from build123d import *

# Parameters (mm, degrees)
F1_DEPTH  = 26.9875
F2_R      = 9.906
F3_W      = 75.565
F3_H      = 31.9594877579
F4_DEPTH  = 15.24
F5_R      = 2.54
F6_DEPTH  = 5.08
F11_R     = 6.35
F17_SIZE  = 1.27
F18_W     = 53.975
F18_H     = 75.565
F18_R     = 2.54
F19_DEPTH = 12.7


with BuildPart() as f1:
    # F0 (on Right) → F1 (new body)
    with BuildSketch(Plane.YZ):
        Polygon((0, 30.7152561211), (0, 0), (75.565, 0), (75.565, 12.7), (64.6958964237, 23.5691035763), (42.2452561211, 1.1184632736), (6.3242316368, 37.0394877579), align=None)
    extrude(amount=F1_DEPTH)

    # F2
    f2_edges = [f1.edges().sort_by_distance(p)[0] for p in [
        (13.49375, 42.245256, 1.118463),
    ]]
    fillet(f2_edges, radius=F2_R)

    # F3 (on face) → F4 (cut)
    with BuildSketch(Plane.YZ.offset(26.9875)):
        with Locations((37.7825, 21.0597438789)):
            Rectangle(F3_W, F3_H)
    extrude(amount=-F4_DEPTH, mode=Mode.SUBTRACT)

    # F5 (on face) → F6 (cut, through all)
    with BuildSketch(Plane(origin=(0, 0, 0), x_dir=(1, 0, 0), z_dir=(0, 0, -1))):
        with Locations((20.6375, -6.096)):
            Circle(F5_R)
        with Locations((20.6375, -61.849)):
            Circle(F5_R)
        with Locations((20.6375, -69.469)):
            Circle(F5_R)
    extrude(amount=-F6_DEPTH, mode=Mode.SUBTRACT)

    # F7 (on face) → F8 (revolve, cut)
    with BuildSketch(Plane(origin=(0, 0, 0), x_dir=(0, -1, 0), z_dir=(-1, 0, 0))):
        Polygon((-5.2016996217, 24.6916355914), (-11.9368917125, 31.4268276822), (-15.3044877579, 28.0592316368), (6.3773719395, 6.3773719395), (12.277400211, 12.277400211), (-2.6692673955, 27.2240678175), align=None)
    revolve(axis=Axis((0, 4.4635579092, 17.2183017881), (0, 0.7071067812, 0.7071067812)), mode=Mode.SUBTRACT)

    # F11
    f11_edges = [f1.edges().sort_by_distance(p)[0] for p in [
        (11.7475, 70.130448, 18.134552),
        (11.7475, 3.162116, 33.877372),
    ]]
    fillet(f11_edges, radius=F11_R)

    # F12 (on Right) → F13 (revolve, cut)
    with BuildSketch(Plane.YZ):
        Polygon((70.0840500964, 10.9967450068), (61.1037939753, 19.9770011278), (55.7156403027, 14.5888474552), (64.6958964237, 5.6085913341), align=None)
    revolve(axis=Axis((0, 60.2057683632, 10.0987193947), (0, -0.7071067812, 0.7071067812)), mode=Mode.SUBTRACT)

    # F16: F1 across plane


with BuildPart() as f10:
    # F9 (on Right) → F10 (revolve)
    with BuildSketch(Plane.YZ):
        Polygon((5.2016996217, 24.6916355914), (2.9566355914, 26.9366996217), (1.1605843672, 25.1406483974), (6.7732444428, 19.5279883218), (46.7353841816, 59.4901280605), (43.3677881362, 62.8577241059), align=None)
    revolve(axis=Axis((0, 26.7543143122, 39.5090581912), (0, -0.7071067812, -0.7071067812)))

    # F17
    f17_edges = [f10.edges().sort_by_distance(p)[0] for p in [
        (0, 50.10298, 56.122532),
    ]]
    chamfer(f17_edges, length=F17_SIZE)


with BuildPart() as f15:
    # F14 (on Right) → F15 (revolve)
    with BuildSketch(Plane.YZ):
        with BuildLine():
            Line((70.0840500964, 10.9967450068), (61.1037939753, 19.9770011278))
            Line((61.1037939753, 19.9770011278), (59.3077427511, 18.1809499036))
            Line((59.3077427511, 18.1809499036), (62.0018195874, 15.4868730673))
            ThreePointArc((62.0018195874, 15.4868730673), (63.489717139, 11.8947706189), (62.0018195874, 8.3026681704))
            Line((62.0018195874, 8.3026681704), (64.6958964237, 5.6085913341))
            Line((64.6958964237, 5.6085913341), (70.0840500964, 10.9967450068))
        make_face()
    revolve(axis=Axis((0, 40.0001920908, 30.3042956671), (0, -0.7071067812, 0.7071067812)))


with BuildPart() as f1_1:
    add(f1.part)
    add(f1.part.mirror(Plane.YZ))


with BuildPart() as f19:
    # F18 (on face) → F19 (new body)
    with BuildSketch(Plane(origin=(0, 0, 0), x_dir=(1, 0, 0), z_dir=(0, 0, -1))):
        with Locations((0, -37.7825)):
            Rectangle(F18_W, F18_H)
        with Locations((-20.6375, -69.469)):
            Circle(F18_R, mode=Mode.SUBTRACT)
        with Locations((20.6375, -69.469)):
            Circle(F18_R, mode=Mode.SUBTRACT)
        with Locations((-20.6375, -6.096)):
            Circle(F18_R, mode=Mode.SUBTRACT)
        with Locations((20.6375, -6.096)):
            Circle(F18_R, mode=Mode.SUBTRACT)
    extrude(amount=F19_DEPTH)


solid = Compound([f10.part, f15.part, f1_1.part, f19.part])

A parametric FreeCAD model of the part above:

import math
import FreeCAD as App
import Part
import Sketcher
Q = App.Units.Quantity


def edges_at(feature, points):
    """Names of the edges that pass closest to the given points."""
    edges = feature.Shape.Edges
    near = lambda p: min(range(len(edges)), key=lambda i: edges[i].distToShape(Part.Vertex(*p))[0])
    return sorted({f"Edge{near(p) + 1}" for p in points})


def add_polygon(sketch, points):
    """Adds a closed chain of lines whose ends are joined by coincident constraints."""
    first, n = sketch.GeometryCount, len(points)
    for a, b in zip(points, points[1:] + points[:1]):
        sketch.addGeometry(Part.LineSegment(App.Vector(*a, 0), App.Vector(*b, 0)), False)
    for i in range(n):
        sketch.addConstraint(Sketcher.Constraint("Coincident", first + i, 2, first + (i + 1) % n, 1))

doc = App.newDocument("Part")
body = doc.addObject("PartDesign::Body", "Body")

sketch1 = body.newObject("Sketcher::SketchObject", "Sketch")
sketch1.AttachmentSupport = (doc.getObject("YZ_Plane"), [""])
sketch1.MapMode = "FlatFace"
add_polygon(sketch1, [(0, 31), (0, 0), (76, 0), (76, 13), (65, 24), (42, 1), (6, 37)])
sketch1.addConstraint([
    Sketcher.Constraint("Vertical", 0),
    Sketcher.Constraint("Horizontal", 1),
    Sketcher.Constraint("Vertical", 2),
    Sketcher.Constraint("Coincident", 0, 2, -1, 1),
    Sketcher.Constraint("Perpendicular", 3, 4),
    Sketcher.Constraint("Perpendicular", 4, 5),
    Sketcher.Constraint("Perpendicular", 5, 6),
    Sketcher.Constraint("Distance", 5, Q("2 in")),
    Sketcher.Constraint("DistanceY", 2, 1, 2, 2, Q("0.5 in")),
    Sketcher.Constraint("Angle", 3, Q("135 deg")),
    Sketcher.Constraint("Distance", 4, Q("1.25 in")),
    Sketcher.Constraint("DistanceX", 1, 1, 1, 2, Q("2.975 in")),
    Sketcher.Constraint("DistanceY", 0, 2, 0, 1, 30.715256),
])
pad1 = body.newObject("PartDesign::Pad", "Pad")
pad1.Profile = sketch1
pad1.Length = Q("1.0625 in")
doc.recompute()

fillet = body.newObject("PartDesign::Fillet", "Fillet")
fillet.Base = (pad1, edges_at(pad1, [(13.494, 42.245, 1.118)]))
fillet.Radius = Q("0.39 in")

sketch2 = body.newObject("Sketcher::SketchObject", "Sketch001")
sketch2.AttachmentSupport = (doc.getObject("YZ_Plane"), [""])
sketch2.MapMode = "FlatFace"
sketch2.AttachmentOffset = App.Placement(App.Vector(0, 0, 1.0625 * 25.4), App.Rotation())
add_polygon(sketch2, [(0, 37), (0, 5), (76, 5), (76, 37)])
sketch2.addConstraint([
    Sketcher.Constraint("Vertical", 0),
    Sketcher.Constraint("Horizontal", 1),
    Sketcher.Constraint("Vertical", 2),
    Sketcher.Constraint("Horizontal", 3),
    Sketcher.Constraint("PointOnObject", 0, 2, -2),
    Sketcher.Constraint("DistanceY", -1, 1, 0, 2, Q("0.2 in")),
    Sketcher.Constraint("DistanceX", 1, 1, 1, 2, Q("2.975 in")),
    Sketcher.Constraint("DistanceY", 0, 2, 0, 1, 31.959488),
])
pocket1 = body.newObject("PartDesign::Pocket", "Pocket")
pocket1.Profile = sketch2
pocket1.Length = Q("0.6 in")

sketch3 = body.newObject("Sketcher::SketchObject", "Sketch002")
sketch3.AttachmentSupport = (doc.getObject("XY_Plane"), [""])
sketch3.MapMode = "FlatFace"
sketch3.addGeometry([
    Part.Circle(App.Vector(20.6, 6.1, 0), App.Vector(0, 0, 1), 2.5),
    Part.Circle(App.Vector(20.6, 61.8, 0), App.Vector(0, 0, 1), 2.5),
    Part.Circle(App.Vector(20.6, 69.5, 0), App.Vector(0, 0, 1), 2.5),
], False)
sketch3.addConstraint([
    Sketcher.Constraint("Equal", 0, 1),
    Sketcher.Constraint("Equal", 1, 2),
    Sketcher.Constraint("Vertical", 0, 3, 1, 3),
    Sketcher.Constraint("Vertical", 1, 3, 2, 3),
    Sketcher.Constraint("Diameter", 0, Q("0.2 in")),
    Sketcher.Constraint("DistanceY", 1, 3, 2, 3, Q("0.3 in")),
    Sketcher.Constraint("DistanceY", -1, 1, 0, 3, Q("0.24 in")),
    Sketcher.Constraint("DistanceX", -1, 1, 0, 3, Q("0.8125 in")),
    Sketcher.Constraint("DistanceY", -1, 1, 1, 3, Q("2.435 in")),
])
pocket2 = body.newObject("PartDesign::Pocket", "Pocket001")
pocket2.Profile = sketch3
pocket2.Type = "ThroughAll"
pocket2.Reversed = True

sketch4 = body.newObject("Sketcher::SketchObject", "Sketch003")
sketch4.AttachmentSupport = (doc.getObject("YZ_Plane"), [""])
sketch4.MapMode = "FlatFace"
add_polygon(sketch4, [(5.2, 24.7), (11.9, 31.4), (15.3, 28.1), (-6.4, 6.4), (-12.3, 12.3), (2.7, 27.2)])
sketch4.addGeometry(Part.LineSegment(App.Vector(-6.4, 6.4, 0), App.Vector(15.3, 28.1, 0)), True)
sketch4.addConstraint([
    Sketcher.Constraint("Coincident", 6, 1, 2, 2),
    Sketcher.Constraint("Coincident", 6, 2, 1, 2),
    Sketcher.Constraint("Perpendicular", 0, 1),
    Sketcher.Constraint("Perpendicular", 1, 2),
    Sketcher.Constraint("Perpendicular", 2, 3),
    Sketcher.Constraint("Perpendicular", 3, 4),
    Sketcher.Constraint("Perpendicular", 4, 5),
    Sketcher.Constraint("Angle", 0, Q("45 deg")),
    Sketcher.Constraint("Distance", 0, Q("0.375 in")),
    Sketcher.Constraint("Distance", 1, Q("0.1875 in")),
    Sketcher.Constraint("Distance", 5, Q("0.141 in")),
    Sketcher.Constraint("DistanceX", 3, 2, -1, 1, 12.2774),
    Sketcher.Constraint("DistanceY", -1, 1, 3, 2, 12.2774),
    Sketcher.Constraint("DistanceX", -1, 1, 5, 2, 5.2017),
])
groove = body.newObject("PartDesign::Groove", "Groove")
groove.Profile = sketch4
groove.ReferenceAxis = (sketch4, ["Axis0"])
groove.Angle = 360
doc.recompute()

fillet2 = body.newObject("PartDesign::Fillet", "Fillet001")
fillet2.Base = (groove, edges_at(groove, [(11.748, 70.13, 18.135), (11.748, 3.162, 33.877)]))
fillet2.Radius = Q("0.25 in")

sketch5 = body.newObject("Sketcher::SketchObject", "Sketch004")
sketch5.AttachmentSupport = (doc.getObject("YZ_Plane"), [""])
sketch5.MapMode = "FlatFace"
add_polygon(sketch5, [(70, 11), (61, 20), (56, 15), (65, 6)])
sketch5.addGeometry(Part.LineSegment(App.Vector(65, 6, 0), App.Vector(56, 15, 0)), True)
sketch5.addConstraint([
    Sketcher.Constraint("Coincident", 4, 1, 2, 2),
    Sketcher.Constraint("Coincident", 4, 2, 1, 2),
    Sketcher.Constraint("Perpendicular", 0, 1),
    Sketcher.Constraint("Perpendicular", 1, 2),
    Sketcher.Constraint("Perpendicular", 2, 3),
    Sketcher.Constraint("Angle", 0, Q("135 deg")),
    Sketcher.Constraint("Distance", 0, Q("0.5 in")),
    Sketcher.Constraint("Distance", 1, Q("0.3 in")),
    Sketcher.Constraint("DistanceY", -1, 1, 0, 2, 19.977001),
    Sketcher.Constraint("DistanceX", -1, 1, 1, 2, 55.71564),
])
groove2 = body.newObject("PartDesign::Groove", "Groove001")
groove2.Profile = sketch5
groove2.ReferenceAxis = (sketch5, ["Axis0"])
groove2.Angle = 360
body2 = doc.addObject("PartDesign::Body", "Body001")

sketch6 = body2.newObject("Sketcher::SketchObject", "Sketch005")
sketch6.AttachmentSupport = (doc.getObject("YZ_Plane001"), [""])
sketch6.MapMode = "FlatFace"
add_polygon(sketch6, [(5.2, 24.7), (3, 26.9), (1.2, 25.1), (6.8, 19.5), (46.7, 59.5), (43.4, 62.9)])
sketch6.addGeometry(Part.LineSegment(App.Vector(46.7, 59.5, 0), App.Vector(6.8, 19.5, 0)), True)
sketch6.addConstraint([
    Sketcher.Constraint("Coincident", 6, 1, 3, 2),
    Sketcher.Constraint("Coincident", 6, 2, 2, 2),
    Sketcher.Constraint("Perpendicular", 0, 1),
    Sketcher.Constraint("Perpendicular", 1, 2),
    Sketcher.Constraint("Perpendicular", 2, 3),
    Sketcher.Constraint("Perpendicular", 3, 4),
    Sketcher.Constraint("Perpendicular", 4, 5),
    Sketcher.Constraint("Angle", 0, Q("135 deg")),
    Sketcher.Constraint("Distance", 1, Q("0.1 in")),
    Sketcher.Constraint("Distance", 0, Q("0.125 in")),
    Sketcher.Constraint("Distance", 2, Q("0.3125 in")),
    Sketcher.Constraint("Distance", 3, Q("2.225 in")),
    Sketcher.Constraint("DistanceY", -1, 1, 0, 2, Q("1.0605 in")),
    Sketcher.Constraint("DistanceX", -1, 1, 5, 2, 5.2017),
])
revolution = body2.newObject("PartDesign::Revolution", "Revolution")
revolution.Profile = sketch6
revolution.ReferenceAxis = (sketch6, ["Axis0"])
revolution.Angle = 360
doc.recompute()

chamfer = body2.newObject("PartDesign::Chamfer", "Chamfer")
chamfer.Base = (revolution, edges_at(revolution, [(0, 50.103, 56.123)]))
chamfer.Size = Q("0.05 in")
body3 = doc.addObject("PartDesign::Body", "Body002")

sketch7 = body3.newObject("Sketcher::SketchObject", "Sketch006")
sketch7.AttachmentSupport = (doc.getObject("YZ_Plane002"), [""])
sketch7.MapMode = "FlatFace"
sketch7.addGeometry([
    Part.LineSegment(App.Vector(70.1, 11, 0), App.Vector(61.1, 20, 0)),
    Part.LineSegment(App.Vector(61.1, 20, 0), App.Vector(59.3, 18.2, 0)),
    Part.LineSegment(App.Vector(59.3, 18.2, 0), App.Vector(62, 15.5, 0)),
    Part.ArcOfCircle(Part.Circle(App.Vector(58.4, 11.9, 0), App.Vector(0, 0, 1), 5.1), math.radians(-45), math.radians(45)),
    Part.LineSegment(App.Vector(62, 8.3, 0), App.Vector(64.7, 5.6, 0)),
    Part.LineSegment(App.Vector(64.7, 5.6, 0), App.Vector(70.1, 11, 0)),
], False)
sketch7.addGeometry(Part.LineSegment(App.Vector(64.7, 5.6, 0), App.Vector(55.7, 14.6, 0)), True)
sketch7.addConstraint([
    Sketcher.Constraint("Coincident", 0, 2, 1, 1),
    Sketcher.Constraint("Coincident", 1, 2, 2, 1),
    Sketcher.Constraint("Tangent", 2, 2, 3, 2),
    Sketcher.Constraint("Coincident", 3, 1, 4, 1),
    Sketcher.Constraint("Coincident", 4, 2, 5, 1),
    Sketcher.Constraint("Coincident", 5, 2, 0, 1),
    Sketcher.Constraint("Coincident", 6, 1, 4, 2),
    Sketcher.Constraint("Perpendicular", 0, 1),
    Sketcher.Constraint("Perpendicular", 1, 2),
    Sketcher.Constraint("Parallel", 2, 4),
    Sketcher.Constraint("Perpendicular", 4, 5),
    Sketcher.Constraint("Perpendicular", 5, 6),
    Sketcher.Constraint("Vertical", 2, 2, 3, 1),
    Sketcher.Constraint("Equal", 2, 4),
    Sketcher.Constraint("Equal", 0, 6),
    Sketcher.Constraint("Radius", 3, Q("0.2 in")),
    Sketcher.Constraint("Angle", 0, Q("135 deg")),
    Sketcher.Constraint("Distance", 0, Q("0.5 in")),
    Sketcher.Constraint("Distance", 1, Q("0.1 in")),
    Sketcher.Constraint("DistanceY", -1, 1, 0, 2, 19.977001),
    Sketcher.Constraint("DistanceX", -1, 1, 2, 2, 62.00182),
])
revolution2 = body3.newObject("PartDesign::Revolution", "Revolution001")
revolution2.Profile = sketch7
revolution2.ReferenceAxis = (sketch7, ["Axis0"])
revolution2.Angle = 360
body4 = doc.addObject("PartDesign::Body", "Body003")
doc.recompute()

body4.BaseFeature = body
doc.recompute()

mirroring = doc.addObject("Part::Mirroring", "Mirroring")
mirroring.Source = body
mirroring.Base = App.Vector(0, 0, 0)
mirroring.Normal = App.Vector(1, 0, 0)
body5 = doc.addObject("PartDesign::Body", "Body004")
body5.BaseFeature = mirroring
boolean = body4.newObject("PartDesign::Boolean", "Boolean")
boolean.Type = "Fuse"
boolean.addObjects([body5])
doc.recompute()
body6 = doc.addObject("PartDesign::Body", "Body005")

sketch8 = body6.newObject("Sketcher::SketchObject", "Sketch007")
sketch8.AttachmentSupport = (doc.getObject("XY_Plane005"), [""])
sketch8.MapMode = "FlatFace"
add_polygon(sketch8, [(-27, 0), (-27, 75.6), (27, 75.6), (27, 0)])
sketch8.addGeometry(Part.Circle(App.Vector(-20.6, 69.5, 0), App.Vector(0, 0, 1), 2.5), False)
sketch8.addGeometry(Part.Circle(App.Vector(20.6, 69.5, 0), App.Vector(0, 0, 1), 2.5), False)
sketch8.addGeometry(Part.Circle(App.Vector(-20.6, 6.1, 0), App.Vector(0, 0, 1), 2.5), False)
sketch8.addGeometry(Part.Circle(App.Vector(20.6, 6.1, 0), App.Vector(0, 0, 1), 2.5), False)
sketch8.addConstraint([
    Sketcher.Constraint("Vertical", 0),
    Sketcher.Constraint("Horizontal", 1),
    Sketcher.Constraint("Vertical", 2),
    Sketcher.Constraint("Horizontal", 3),
    Sketcher.Constraint("Equal", 4, 5),
    Sketcher.Constraint("Equal", 5, 6),
    Sketcher.Constraint("Equal", 6, 7),
    Sketcher.Constraint("Symmetric", 2, 2, 3, 2, -1, 1),
    Sketcher.Constraint("Symmetric", 4, 3, 5, 3, -2),
    Sketcher.Constraint("Symmetric", 6, 3, 7, 3, -2),
    Sketcher.Constraint("Vertical", 4, 3, 6, 3),
    Sketcher.Constraint("Diameter", 4, Q("0.2 in")),
    Sketcher.Constraint("DistanceX", 1, 1, 1, 2, Q("2.125 in")),
    Sketcher.Constraint("DistanceY", 0, 1, 0, 2, Q("2.975 in")),
    Sketcher.Constraint("DistanceY", -1, 1, 6, 3, Q("0.24 in")),
    Sketcher.Constraint("DistanceX", 0, 2, 4, 3, Q("0.25 in")),
    Sketcher.Constraint("DistanceY", 4, 3, 0, 2, Q("0.24 in")),
])
pad2 = body6.newObject("PartDesign::Pad", "Pad001")
pad2.Profile = sketch8
pad2.Length = Q("0.5 in")
pad2.Reversed = True
mirroring.Visibility = False

doc.recompute()
